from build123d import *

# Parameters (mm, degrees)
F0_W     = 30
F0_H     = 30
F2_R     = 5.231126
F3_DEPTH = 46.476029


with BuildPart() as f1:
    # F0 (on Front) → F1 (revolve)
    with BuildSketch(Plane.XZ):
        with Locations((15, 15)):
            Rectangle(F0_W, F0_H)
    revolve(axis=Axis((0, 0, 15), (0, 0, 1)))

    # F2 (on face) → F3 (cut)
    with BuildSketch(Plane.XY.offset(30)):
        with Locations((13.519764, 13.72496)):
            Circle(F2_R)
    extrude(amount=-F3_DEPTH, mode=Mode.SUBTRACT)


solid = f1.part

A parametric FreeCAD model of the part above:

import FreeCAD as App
import Part
import Sketcher
from FreeCAD import Vector
Q = App.Units.Quantity


def add_polygon(sketch, points):
    """Adds a closed chain of lines whose ends are joined by coincident constraints."""
    first, n = sketch.GeometryCount, len(points)
    for a, b in zip(points, points[1:] + points[:1]):
        sketch.addGeometry(Part.LineSegment(App.Vector(*a, 0), App.Vector(*b, 0)), False)
    for i in range(n):
        sketch.addConstraint(Sketcher.Constraint("Coincident", first + i, 2, first + (i + 1) % n, 1))

doc = App.newDocument("Part")
body = doc.addObject("PartDesign::Body", "Body")

# Sketch on XZ plane
sketch1 = body.newObject("Sketcher::SketchObject", "Sketch")
sketch1.AttachmentSupport = (doc.getObject("XZ_Plane"), [""])
sketch1.MapMode = "FlatFace"
add_polygon(sketch1, [(0, 30), (0, 0), (30, 0), (30, 30)])  # lines 0-3
sketch1.addConstraint(Sketcher.Constraint("Vertical", 0))
sketch1.addConstraint(Sketcher.Constraint("Horizontal", 1))
sketch1.addConstraint(Sketcher.Constraint("Vertical", 2))
sketch1.addConstraint(Sketcher.Constraint("Horizontal", 3))
sketch1.addConstraint(Sketcher.Constraint("Coincident", 0, 2, -1, 1))
sketch1.addConstraint(Sketcher.Constraint("Equal", 3, 0))
sketch1.addConstraint(Sketcher.Constraint("DistanceX", 1, 1, 1, 2, Q("30 mm")))
revolution = body.newObject("PartDesign::Revolution", "Revolution")
revolution.Profile = sketch1
revolution.ReferenceAxis = (sketch1, ["V_Axis"])
revolution.Angle = 360

# Sketch on XY plane
sketch2 = body.newObject("Sketcher::SketchObject", "Sketch001")
sketch2.AttachmentSupport = (doc.getObject("XY_Plane"), [""])
sketch2.MapMode = "FlatFace"
sketch2.AttachmentOffset = App.Placement(Vector(0, 0, 30), App.Rotation())
sketch2.addGeometry(Part.Circle(Vector(14, 14, 0), Vector(0, 0, 1), 5), False)
sketch2.addConstraint(Sketcher.Constraint("Diameter", 0, Q("10.462252 mm")))
sketch2.addConstraint(Sketcher.Constraint("DistanceY", -1, 1, 0, 3, Q("13.72496 mm")))
sketch2.addConstraint(Sketcher.Constraint("DistanceX", -1, 1, 0, 3, Q("13.519764 mm")))
pocket1 = body.newObject("PartDesign::Pocket", "Pocket")
pocket1.Profile = sketch2
pocket1.Length = 46.476029

doc.recompute()
